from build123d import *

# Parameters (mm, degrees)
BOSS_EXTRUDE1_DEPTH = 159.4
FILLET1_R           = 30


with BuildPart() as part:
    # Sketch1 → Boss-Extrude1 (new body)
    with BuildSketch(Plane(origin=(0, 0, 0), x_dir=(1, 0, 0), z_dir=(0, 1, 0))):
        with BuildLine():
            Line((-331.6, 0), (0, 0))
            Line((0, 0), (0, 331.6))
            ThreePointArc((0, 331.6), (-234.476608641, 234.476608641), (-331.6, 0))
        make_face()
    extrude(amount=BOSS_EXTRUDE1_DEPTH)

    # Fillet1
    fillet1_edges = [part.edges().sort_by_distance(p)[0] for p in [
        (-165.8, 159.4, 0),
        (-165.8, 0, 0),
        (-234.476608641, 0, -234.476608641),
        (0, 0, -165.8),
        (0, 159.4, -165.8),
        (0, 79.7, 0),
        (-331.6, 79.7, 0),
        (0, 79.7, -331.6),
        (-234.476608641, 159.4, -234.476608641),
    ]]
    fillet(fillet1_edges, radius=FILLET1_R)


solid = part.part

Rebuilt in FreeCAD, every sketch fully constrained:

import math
import FreeCAD as App
import Part
import Sketcher
Q = App.Units.Quantity

doc = App.newDocument("Part")
body = doc.addObject("PartDesign::Body", "Body")

sketch1 = body.newObject("Sketcher::SketchObject", "Sketch")
sketch1.AttachmentSupport = (doc.getObject("XZ_Plane"), [""])
sketch1.MapMode = "FlatFace"
sketch1.addGeometry([
    Part.LineSegment(App.Vector(-332, 0, 0), App.Vector(0, 0, 0)),
    Part.LineSegment(App.Vector(0, 0, 0), App.Vector(0, -332, 0)),
    Part.ArcOfCircle(Part.Circle(App.Vector(0, 0, 0), App.Vector(0, 0, 1), 332), math.radians(-180), math.radians(-90)),
], False)
sketch1.addConstraint([
    Sketcher.Constraint("Coincident", 0, 2, 1, 1),
    Sketcher.Constraint("Coincident", 1, 2, 2, 2),
    Sketcher.Constraint("Coincident", 2, 1, 0, 1),
    Sketcher.Constraint("Horizontal", 0),
    Sketcher.Constraint("Vertical", 1),
    Sketcher.Constraint("Coincident", 2, 3, -1, 1),
    Sketcher.Constraint("Coincident", 0, 2, -1, 1),
    Sketcher.Constraint("Radius", 2, Q("331.6 mm")),
])
pad1 = body.newObject("PartDesign::Pad", "Pad")
pad1.Profile = sketch1
pad1.Length = 159.4
pad1.Reversed = True
doc.recompute()

fillet = body.newObject("PartDesign::Fillet", "Fillet")
fillet.Base = (pad1, ["Edge1"])
fillet.UseAllEdges = True
fillet.Radius = 30

doc.recompute()
